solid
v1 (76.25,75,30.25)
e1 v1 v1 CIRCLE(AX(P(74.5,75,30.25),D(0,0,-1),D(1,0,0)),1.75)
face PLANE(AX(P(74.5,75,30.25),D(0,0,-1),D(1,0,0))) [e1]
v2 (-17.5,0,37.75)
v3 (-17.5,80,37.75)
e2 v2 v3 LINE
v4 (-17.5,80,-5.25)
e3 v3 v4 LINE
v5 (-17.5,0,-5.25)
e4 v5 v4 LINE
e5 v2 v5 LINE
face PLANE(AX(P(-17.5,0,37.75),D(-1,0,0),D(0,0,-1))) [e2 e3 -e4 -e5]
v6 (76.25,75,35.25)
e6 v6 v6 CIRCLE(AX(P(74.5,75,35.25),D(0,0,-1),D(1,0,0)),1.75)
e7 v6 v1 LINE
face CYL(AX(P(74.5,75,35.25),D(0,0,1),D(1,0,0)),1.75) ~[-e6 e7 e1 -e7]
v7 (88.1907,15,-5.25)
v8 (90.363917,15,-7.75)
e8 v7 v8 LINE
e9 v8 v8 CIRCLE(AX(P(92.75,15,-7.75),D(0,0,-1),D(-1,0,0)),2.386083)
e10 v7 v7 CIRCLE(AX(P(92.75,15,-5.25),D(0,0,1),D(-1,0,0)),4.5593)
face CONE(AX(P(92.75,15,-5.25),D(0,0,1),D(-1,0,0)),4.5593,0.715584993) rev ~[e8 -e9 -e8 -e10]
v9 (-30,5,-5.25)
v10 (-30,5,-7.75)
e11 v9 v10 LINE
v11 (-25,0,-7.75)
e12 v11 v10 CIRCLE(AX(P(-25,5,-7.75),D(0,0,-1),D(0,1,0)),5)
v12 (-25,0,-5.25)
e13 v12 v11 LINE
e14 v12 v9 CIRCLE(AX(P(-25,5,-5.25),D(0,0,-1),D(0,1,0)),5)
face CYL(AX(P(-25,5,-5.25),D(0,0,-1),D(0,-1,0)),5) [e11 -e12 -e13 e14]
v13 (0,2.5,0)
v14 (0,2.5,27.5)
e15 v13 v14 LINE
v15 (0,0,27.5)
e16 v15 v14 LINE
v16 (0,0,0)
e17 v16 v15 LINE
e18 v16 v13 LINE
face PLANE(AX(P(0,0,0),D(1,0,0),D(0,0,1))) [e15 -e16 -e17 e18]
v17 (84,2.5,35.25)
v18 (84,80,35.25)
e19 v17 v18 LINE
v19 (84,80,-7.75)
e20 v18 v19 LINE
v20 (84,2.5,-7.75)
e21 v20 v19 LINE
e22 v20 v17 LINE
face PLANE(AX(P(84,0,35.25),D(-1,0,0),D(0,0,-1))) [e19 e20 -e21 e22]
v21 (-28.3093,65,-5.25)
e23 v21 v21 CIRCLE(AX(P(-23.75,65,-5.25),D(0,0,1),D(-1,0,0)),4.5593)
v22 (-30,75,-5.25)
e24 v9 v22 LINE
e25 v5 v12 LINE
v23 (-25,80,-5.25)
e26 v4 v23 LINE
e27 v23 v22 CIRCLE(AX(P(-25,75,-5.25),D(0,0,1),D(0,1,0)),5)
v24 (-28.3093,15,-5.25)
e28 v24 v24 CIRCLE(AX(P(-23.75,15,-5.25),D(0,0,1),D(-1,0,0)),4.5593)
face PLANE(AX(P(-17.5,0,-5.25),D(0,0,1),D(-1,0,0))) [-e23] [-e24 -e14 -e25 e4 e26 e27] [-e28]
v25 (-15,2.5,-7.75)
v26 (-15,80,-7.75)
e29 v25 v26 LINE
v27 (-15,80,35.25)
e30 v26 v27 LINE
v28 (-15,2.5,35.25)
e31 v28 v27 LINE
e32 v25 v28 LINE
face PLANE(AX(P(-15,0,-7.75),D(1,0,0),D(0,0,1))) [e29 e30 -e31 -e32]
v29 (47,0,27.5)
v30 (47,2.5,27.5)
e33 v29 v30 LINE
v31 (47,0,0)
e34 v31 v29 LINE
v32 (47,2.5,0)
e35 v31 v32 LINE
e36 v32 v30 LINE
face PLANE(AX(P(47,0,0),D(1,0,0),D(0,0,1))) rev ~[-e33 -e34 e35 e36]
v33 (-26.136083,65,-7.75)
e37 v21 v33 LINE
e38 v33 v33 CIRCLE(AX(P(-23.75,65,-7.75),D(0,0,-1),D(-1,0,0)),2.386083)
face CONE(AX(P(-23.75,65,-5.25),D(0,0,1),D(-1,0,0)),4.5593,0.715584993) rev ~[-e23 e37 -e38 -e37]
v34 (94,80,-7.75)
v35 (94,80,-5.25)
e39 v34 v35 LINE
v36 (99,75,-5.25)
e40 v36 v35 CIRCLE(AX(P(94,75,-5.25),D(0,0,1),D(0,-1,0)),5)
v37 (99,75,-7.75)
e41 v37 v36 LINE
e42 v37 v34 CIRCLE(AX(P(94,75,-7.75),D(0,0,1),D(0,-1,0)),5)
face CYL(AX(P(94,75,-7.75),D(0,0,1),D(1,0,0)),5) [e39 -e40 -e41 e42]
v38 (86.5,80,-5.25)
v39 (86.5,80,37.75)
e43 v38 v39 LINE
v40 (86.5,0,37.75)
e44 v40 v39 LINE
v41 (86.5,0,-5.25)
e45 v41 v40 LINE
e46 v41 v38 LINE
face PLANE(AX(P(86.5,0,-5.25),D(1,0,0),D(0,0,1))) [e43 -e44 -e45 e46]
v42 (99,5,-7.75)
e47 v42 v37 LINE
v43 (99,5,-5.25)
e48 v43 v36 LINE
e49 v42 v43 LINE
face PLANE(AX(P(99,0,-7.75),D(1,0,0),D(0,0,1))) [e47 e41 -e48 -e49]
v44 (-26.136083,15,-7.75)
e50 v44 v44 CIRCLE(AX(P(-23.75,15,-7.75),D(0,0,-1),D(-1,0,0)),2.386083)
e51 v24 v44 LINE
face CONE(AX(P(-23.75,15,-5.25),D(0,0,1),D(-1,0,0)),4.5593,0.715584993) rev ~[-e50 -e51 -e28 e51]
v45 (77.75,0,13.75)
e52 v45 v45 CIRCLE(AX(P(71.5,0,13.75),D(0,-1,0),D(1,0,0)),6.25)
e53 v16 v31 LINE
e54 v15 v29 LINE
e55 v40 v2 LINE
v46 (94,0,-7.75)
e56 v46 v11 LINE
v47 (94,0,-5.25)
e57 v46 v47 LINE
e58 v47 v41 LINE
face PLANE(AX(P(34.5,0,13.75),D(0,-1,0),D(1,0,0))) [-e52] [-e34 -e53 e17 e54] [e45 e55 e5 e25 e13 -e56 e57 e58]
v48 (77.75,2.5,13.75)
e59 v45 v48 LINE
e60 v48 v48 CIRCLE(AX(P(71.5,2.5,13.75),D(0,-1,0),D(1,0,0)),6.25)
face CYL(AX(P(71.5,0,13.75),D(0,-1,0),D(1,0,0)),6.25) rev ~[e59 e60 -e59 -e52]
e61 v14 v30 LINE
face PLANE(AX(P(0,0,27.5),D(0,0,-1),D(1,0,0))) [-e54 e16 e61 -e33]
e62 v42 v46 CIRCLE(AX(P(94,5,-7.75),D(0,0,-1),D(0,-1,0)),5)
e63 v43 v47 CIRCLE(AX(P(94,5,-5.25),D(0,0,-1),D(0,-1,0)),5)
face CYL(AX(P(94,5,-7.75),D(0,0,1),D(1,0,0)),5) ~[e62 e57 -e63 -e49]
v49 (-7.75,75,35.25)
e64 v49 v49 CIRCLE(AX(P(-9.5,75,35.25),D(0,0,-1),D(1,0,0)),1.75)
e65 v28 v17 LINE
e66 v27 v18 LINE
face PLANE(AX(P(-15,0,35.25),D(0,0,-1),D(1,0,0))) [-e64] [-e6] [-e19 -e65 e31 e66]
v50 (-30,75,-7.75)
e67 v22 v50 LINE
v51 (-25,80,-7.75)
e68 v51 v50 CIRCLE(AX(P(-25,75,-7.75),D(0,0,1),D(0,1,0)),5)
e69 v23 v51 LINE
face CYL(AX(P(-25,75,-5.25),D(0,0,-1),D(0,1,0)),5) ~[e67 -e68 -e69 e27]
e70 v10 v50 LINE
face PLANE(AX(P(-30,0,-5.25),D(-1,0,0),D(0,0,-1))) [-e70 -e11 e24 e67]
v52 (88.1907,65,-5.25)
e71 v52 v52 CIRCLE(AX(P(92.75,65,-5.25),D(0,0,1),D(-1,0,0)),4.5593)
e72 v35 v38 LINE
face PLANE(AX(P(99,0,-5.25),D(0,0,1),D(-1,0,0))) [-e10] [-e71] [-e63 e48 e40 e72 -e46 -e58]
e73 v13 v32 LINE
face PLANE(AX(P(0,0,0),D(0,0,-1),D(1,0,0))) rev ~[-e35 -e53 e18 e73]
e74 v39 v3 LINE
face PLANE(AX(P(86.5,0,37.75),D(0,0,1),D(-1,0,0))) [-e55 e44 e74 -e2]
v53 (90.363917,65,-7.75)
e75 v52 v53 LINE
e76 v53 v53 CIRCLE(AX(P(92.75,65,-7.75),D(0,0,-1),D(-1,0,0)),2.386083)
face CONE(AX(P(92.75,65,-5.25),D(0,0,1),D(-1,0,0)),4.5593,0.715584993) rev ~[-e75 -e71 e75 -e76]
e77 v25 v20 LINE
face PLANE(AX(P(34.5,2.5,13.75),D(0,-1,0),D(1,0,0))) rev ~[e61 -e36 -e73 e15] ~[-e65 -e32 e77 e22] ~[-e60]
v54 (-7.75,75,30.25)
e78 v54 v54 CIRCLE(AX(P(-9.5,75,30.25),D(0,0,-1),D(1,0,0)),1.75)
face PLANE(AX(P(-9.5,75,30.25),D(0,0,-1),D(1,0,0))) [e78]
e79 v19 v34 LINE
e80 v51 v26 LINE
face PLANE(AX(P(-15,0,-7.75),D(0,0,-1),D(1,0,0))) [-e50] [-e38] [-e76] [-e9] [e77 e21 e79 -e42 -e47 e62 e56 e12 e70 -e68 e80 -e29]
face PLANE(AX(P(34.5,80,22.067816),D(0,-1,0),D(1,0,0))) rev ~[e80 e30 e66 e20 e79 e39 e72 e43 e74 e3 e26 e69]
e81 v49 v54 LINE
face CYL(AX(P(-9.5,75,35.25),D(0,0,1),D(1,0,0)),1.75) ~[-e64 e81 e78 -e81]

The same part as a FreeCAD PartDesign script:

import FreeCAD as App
import Part
import Sketcher

V = App.Vector


def edges_at(feature, points):
    """Names of the edges that pass closest to the given points."""
    edges = feature.Shape.Edges
    near = lambda p: min(range(len(edges)), key=lambda i: edges[i].distToShape(Part.Vertex(*p))[0])
    return sorted({f"Edge{near(p) + 1}" for p in points})


def add_polygon(sketch, points):
    """Adds a closed chain of lines whose ends are joined by coincident constraints."""
    first, n = sketch.GeometryCount, len(points)
    for a, b in zip(points, points[1:] + points[:1]):
        sketch.addGeometry(Part.LineSegment(App.Vector(*a, 0), App.Vector(*b, 0)), False)
    for i in range(n):
        sketch.addConstraint(Sketcher.Constraint("Coincident", first + i, 2, first + (i + 1) % n, 1))

doc = App.newDocument("Part")
body = doc.addObject("PartDesign::Body", "Body")

# Sketch on XZ plane
sketch1 = body.newObject("Sketcher::SketchObject", "Sketch")
sketch1.AttachmentSupport = (doc.getObject("XZ_Plane"), [""])
sketch1.MapMode = "FlatFace"
add_polygon(sketch1, [(-15, -7.8), (-15, 35.2), (84, 35.2), (84, -7.8), (99, -7.8), (99, -5.2), (86.5, -5.2), (86.5, 37.8), (-17.5, 37.8), (-17.5, -5.2), (-30, -5.2), (-30, -7.8)])  # lines 0-11
sketch1.addConstraint([
    Sketcher.Constraint("Vertical", 0),
    Sketcher.Constraint("Horizontal", 1),
    Sketcher.Constraint("Vertical", 2),
    Sketcher.Constraint("Horizontal", 3),
    Sketcher.Constraint("Vertical", 4),
    Sketcher.Constraint("Horizontal", 5),
    Sketcher.Constraint("Vertical", 6),
    Sketcher.Constraint("Horizontal", 7),
    Sketcher.Constraint("Vertical", 8),
    Sketcher.Constraint("Horizontal", 9),
    Sketcher.Constraint("Vertical", 10),
    Sketcher.Constraint("Horizontal", 11),
    Sketcher.Constraint("Horizontal", 5, 2, 8, 2),
    Sketcher.Constraint("Horizontal", 3, 2, 10, 2),
    Sketcher.Constraint("Equal", 5, 9),
    Sketcher.Constraint("Equal", 3, 11),
    Sketcher.Constraint("Equal", 2, 6),
    Sketcher.Constraint("DistanceX", 1, 1, 1, 2, 99.0),
    Sketcher.Constraint("DistanceX", 3, 1, 3, 2, 15.0),
    Sketcher.Constraint("DistanceX", 7, 2, 7, 1, 104.0),
    Sketcher.Constraint("DistanceY", 0, 1, 0, 2, 43.0),
    Sketcher.Constraint("DistanceY", 4, 1, 4, 2, 2.5),
    Sketcher.Constraint("DistanceX", 0, 2, -1, 1, 15.0),
    Sketcher.Constraint("DistanceY", -1, 1, 0, 2, 35.25),
])
pad1 = body.newObject("PartDesign::Pad", "Pad")
pad1.Profile = sketch1
pad1.Length = 80
pad1.Reversed = True

# Sketch on XZ plane
sketch2 = body.newObject("Sketcher::SketchObject", "Sketch001")
sketch2.AttachmentSupport = (doc.getObject("XZ_Plane"), [""])
sketch2.MapMode = "FlatFace"
add_polygon(sketch2, [(-15, 35), (-15, -8), (84, -8), (84, 35)])  # lines 0-3
add_polygon(sketch2, [(47, 0), (0, 0), (0, 28), (47, 28)])  # lines 4-7
sketch2.addGeometry(Part.Circle(V(72, 14, 0), V(0, 0, 1), 6), False)  # 8
sketch2.addConstraint([
    Sketcher.Constraint("Vertical", 0),
    Sketcher.Constraint("Horizontal", 1),
    Sketcher.Constraint("Vertical", 2),
    Sketcher.Constraint("Horizontal", 3),
    Sketcher.Constraint("Horizontal", 4),
    Sketcher.Constraint("Vertical", 5),
    Sketcher.Constraint("Horizontal", 6),
    Sketcher.Constraint("Vertical", 7),
    Sketcher.Constraint("Coincident", 4, 2, -1, 1),
    Sketcher.Constraint("Diameter", 8, 12.5),
    Sketcher.Constraint("DistanceX", 1, 1, 1, 2, 99.0),
    Sketcher.Constraint("DistanceX", 4, 2, 4, 1, 47.0),
    Sketcher.Constraint("DistanceY", 0, 2, 0, 1, 43.0),
    Sketcher.Constraint("DistanceY", 5, 1, 5, 2, 27.5),
    Sketcher.Constraint("DistanceX", 0, 2, -1, 1, 15.0),
    Sketcher.Constraint("DistanceX", -1, 1, 8, 3, 71.5),
    Sketcher.Constraint("DistanceY", 0, 2, 8, 3, 21.5),
    Sketcher.Constraint("DistanceY", -1, 1, 8, 3, 13.75),
])
pad2 = body.newObject("PartDesign::Pad", "Pad001")
pad2.Profile = sketch2
pad2.Length = 2.5
pad2.Reversed = True

# Sketch on XY plane
sketch3 = body.newObject("Sketcher::SketchObject", "Sketch002")
sketch3.AttachmentSupport = (doc.getObject("XY_Plane"), [""])
sketch3.MapMode = "FlatFace"
sketch3.AttachmentOffset = App.Placement(V(0, 0, -5.25), App.Rotation())
sketch3.addGeometry([
    Part.Circle(V(-23.8, 65, 0), V(0, 0, 1), 2.2),
    Part.Circle(V(-23.8, 15, 0), V(0, 0, 1), 2.2),
    Part.Circle(V(92.8, 15, 0), V(0, 0, 1), 2.2),
    Part.Circle(V(92.8, 65, 0), V(0, 0, 1), 2.2),
], False)
sketch3.addConstraint([
    Sketcher.Constraint("Equal", 0, 1),
    Sketcher.Constraint("Equal", 1, 2),
    Sketcher.Constraint("Equal", 2, 3),
    Sketcher.Constraint("Horizontal", 1, 3, 2, 3),
    Sketcher.Constraint("Horizontal", 0, 3, 3, 3),
    Sketcher.Constraint("Vertical", 0, 3, 1, 3),
    Sketcher.Constraint("Vertical", 2, 3, 3, 3),
    Sketcher.Constraint("DistanceY", -1, 1, 0, 3, 65.0),
    Sketcher.Constraint("DistanceY", -1, 1, 1, 3, 15.0),
    Sketcher.Constraint("Diameter", 0, 4.4958),
    Sketcher.Constraint("DistanceX", 1, 3, 2, 3, 116.5),
    Sketcher.Constraint("DistanceX", 0, 3, -1, 1, 23.75),
])
doc.recompute()
hole = body.newObject("PartDesign::Hole", "Hole")
hole.Profile = sketch3
hole.ThreadType = "None"
hole.Diameter = 4.4958
hole.DepthType = "ThroughAll"
hole.HoleCutType = "Countersink"
hole.HoleCutDiameter = 9.1186
hole.HoleCutCountersinkAngle = 82
doc.recompute()

fillet = body.newObject("PartDesign::Fillet", "Fillet")
fillet.Base = (hole, edges_at(hole, [
    (99, 0, -6.5),
    (-30, 0, -6.5),
    (99, 80, -6.5),
    (-30, 80, -6.5),
]))
fillet.Radius = 5

# Sketch on XY plane
sketch4 = body.newObject("Sketcher::SketchObject", "Sketch003")
sketch4.AttachmentSupport = (doc.getObject("XY_Plane"), [""])
sketch4.MapMode = "FlatFace"
sketch4.AttachmentOffset = App.Placement(V(0, 0, 35.25), App.Rotation())
sketch4.addGeometry([
    Part.Circle(V(-9.5, 75, 0), V(0, 0, 1), 1.8),
    Part.Circle(V(74.5, 75, 0), V(0, 0, 1), 1.8),
], False)
sketch4.addConstraint([
    Sketcher.Constraint("Equal", 0, 1),
    Sketcher.Constraint("Horizontal", 0, 3, 1, 3),
    Sketcher.Constraint("Diameter", 0, 3.5),
    Sketcher.Constraint("DistanceY", -1, 1, 0, 3, 75.0),
    Sketcher.Constraint("DistanceX", 0, 3, 1, 3, 84.0),
    Sketcher.Constraint("DistanceX", 0, 3, -1, 1, 9.5),
])
pad3 = body.newObject("PartDesign::Pad", "Pad002")
pad3.Profile = sketch4
pad3.Length = 5
pad3.Reversed = True

doc.recompute()
